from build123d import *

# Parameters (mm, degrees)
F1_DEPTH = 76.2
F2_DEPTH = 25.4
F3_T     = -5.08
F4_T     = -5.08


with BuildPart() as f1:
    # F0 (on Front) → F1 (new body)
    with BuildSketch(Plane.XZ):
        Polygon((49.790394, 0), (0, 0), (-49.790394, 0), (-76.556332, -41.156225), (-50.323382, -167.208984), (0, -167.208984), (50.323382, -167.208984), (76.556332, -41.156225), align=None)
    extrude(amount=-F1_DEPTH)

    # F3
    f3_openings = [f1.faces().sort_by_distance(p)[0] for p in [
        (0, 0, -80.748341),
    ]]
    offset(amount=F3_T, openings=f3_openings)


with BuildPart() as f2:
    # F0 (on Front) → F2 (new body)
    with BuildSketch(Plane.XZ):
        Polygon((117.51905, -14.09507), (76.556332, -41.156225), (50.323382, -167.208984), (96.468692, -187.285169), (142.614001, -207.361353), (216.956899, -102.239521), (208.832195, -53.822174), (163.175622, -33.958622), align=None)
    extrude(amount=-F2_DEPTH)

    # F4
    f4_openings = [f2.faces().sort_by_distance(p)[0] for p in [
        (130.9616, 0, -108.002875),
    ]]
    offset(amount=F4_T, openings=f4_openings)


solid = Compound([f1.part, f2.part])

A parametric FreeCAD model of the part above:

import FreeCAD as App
import Part
import Sketcher
Q = App.Units.Quantity


def faces_at(feature, points):
    """Names of the faces that lie closest to the given points."""
    faces = feature.Shape.Faces
    near = lambda p: min(range(len(faces)), key=lambda i: faces[i].distToShape(Part.Vertex(*p))[0])
    return sorted({f"Face{near(p) + 1}" for p in points})

doc = App.newDocument("Part")
body = doc.addObject("PartDesign::Body", "Body")

sketch1 = body.newObject("Sketcher::SketchObject", "Sketch")
sketch1.AttachmentSupport = (doc.getObject("XZ_Plane"), [""])
sketch1.MapMode = "FlatFace"
sketch1.addGeometry([
    Part.LineSegment(App.Vector(50, 0, 0), App.Vector(-50, 0, 0)),
    Part.LineSegment(App.Vector(-50, 0, 0), App.Vector(-77, -41, 0)),
    Part.LineSegment(App.Vector(-77, -41, 0), App.Vector(-50, -167, 0)),
    Part.LineSegment(App.Vector(-50, -167, 0), App.Vector(50, -167, 0)),
    Part.LineSegment(App.Vector(50, -167, 0), App.Vector(77, -41, 0)),
    Part.LineSegment(App.Vector(77, -41, 0), App.Vector(50, 0, 0)),
], False)
sketch1.addConstraint([
    Sketcher.Constraint("Coincident", 0, 2, 1, 1),
    Sketcher.Constraint("Coincident", 1, 2, 2, 1),
    Sketcher.Constraint("Coincident", 2, 2, 3, 1),
    Sketcher.Constraint("Coincident", 3, 2, 4, 1),
    Sketcher.Constraint("Coincident", 4, 2, 5, 1),
    Sketcher.Constraint("Coincident", 5, 2, 0, 1),
    Sketcher.Constraint("Horizontal", 0),
    Sketcher.Constraint("Horizontal", 3),
    Sketcher.Constraint("Symmetric", 0, 2, 5, 2, -1, 1),
    Sketcher.Constraint("Symmetric", 1, 2, 4, 2, -2),
    Sketcher.Constraint("Equal", 2, 4),
    Sketcher.Constraint("Distance", 1, Q("49.0943 mm")),
    Sketcher.Constraint("DistanceX", 0, 2, 0, 1, Q("99.580788 mm")),
    Sketcher.Constraint("DistanceX", 3, 1, 3, 2, Q("100.646764 mm")),
    Sketcher.Constraint("DistanceX", 1, 2, -1, 1, Q("76.556332 mm")),
    Sketcher.Constraint("DistanceY", 2, 2, 1, 2, Q("126.052759 mm")),
])
pad1 = body.newObject("PartDesign::Pad", "Pad")
pad1.Profile = sketch1
pad1.Length = Q("3 in")
pad1.Reversed = True
doc.recompute()

thickness = body.newObject("PartDesign::Thickness", "Thickness")
thickness.Base = (pad1, faces_at(pad1, [(0, 0, -83.604)]))
thickness.Value = Q("0.2 in")
thickness.Reversed = True
thickness.Join = "Arc"
body2 = doc.addObject("PartDesign::Body", "Body001")

sketch2 = body2.newObject("Sketcher::SketchObject", "Sketch001")
sketch2.AttachmentSupport = (doc.getObject("XZ_Plane001"), [""])
sketch2.MapMode = "FlatFace"
sketch2.addGeometry([
    Part.LineSegment(App.Vector(118, -14, 0), App.Vector(77, -41, 0)),
    Part.LineSegment(App.Vector(77, -41, 0), App.Vector(50, -167, 0)),
    Part.LineSegment(App.Vector(50, -167, 0), App.Vector(96, -187, 0)),
    Part.LineSegment(App.Vector(96, -187, 0), App.Vector(143, -207, 0)),
    Part.LineSegment(App.Vector(143, -207, 0), App.Vector(217, -102, 0)),
    Part.LineSegment(App.Vector(217, -102, 0), App.Vector(209, -54, 0)),
    Part.LineSegment(App.Vector(209, -54, 0), App.Vector(163, -34, 0)),
    Part.LineSegment(App.Vector(163, -34, 0), App.Vector(118, -14, 0)),
], False)
sketch2.addConstraint([
    Sketcher.Constraint("Coincident", 0, 2, 1, 1),
    Sketcher.Constraint("Coincident", 1, 2, 2, 1),
    Sketcher.Constraint("Coincident", 2, 2, 3, 1),
    Sketcher.Constraint("Coincident", 3, 2, 4, 1),
    Sketcher.Constraint("Coincident", 4, 2, 5, 1),
    Sketcher.Constraint("Coincident", 5, 2, 6, 1),
    Sketcher.Constraint("Coincident", 6, 2, 7, 1),
    Sketcher.Constraint("Coincident", 7, 2, 0, 1),
    Sketcher.Constraint("Parallel", 2, 3),
    Sketcher.Constraint("Parallel", 3, 6),
    Sketcher.Constraint("Parallel", 6, 7),
    Sketcher.Constraint("Equal", 2, 3),
    Sketcher.Constraint("Equal", 1, 4),
    Sketcher.Constraint("Equal", 0, 5),
    Sketcher.Constraint("Equal", 6, 7),
    Sketcher.Constraint("DistanceY", 0, 2, 7, 2, Q("1.0653998 in")),
    Sketcher.Constraint("Distance", 0, Q("49.094301 mm")),
    Sketcher.Constraint("DistanceX", -1, 1, 3, 2, Q("142.614001 mm")),
    Sketcher.Constraint("DistanceX", -1, 1, 4, 2, Q("216.956899 mm")),
    Sketcher.Constraint("DistanceY", 4, 2, 6, 2, Q("68.280899 mm")),
    Sketcher.Constraint("Distance", 3, Q("50.323381 mm")),
    Sketcher.Constraint("Distance", 4, Q("128.753509 mm")),
    Sketcher.Constraint("DistanceX", -1, 1, 0, 2, Q("76.556332 mm")),
    Sketcher.Constraint("DistanceY", 2, 2, -1, 1, Q("187.285169 mm")),
])
pad2 = body2.newObject("PartDesign::Pad", "Pad001")
pad2.Profile = sketch2
pad2.Length = Q("1 in")
pad2.Reversed = True
doc.recompute()

thickness2 = body2.newObject("PartDesign::Thickness", "Thickness001")
thickness2.Base = (pad2, faces_at(pad2, [(133.64, 0, -110.728)]))
thickness2.Value = Q("0.2 in")
thickness2.Reversed = True
thickness2.Join = "Arc"

doc.recompute()
